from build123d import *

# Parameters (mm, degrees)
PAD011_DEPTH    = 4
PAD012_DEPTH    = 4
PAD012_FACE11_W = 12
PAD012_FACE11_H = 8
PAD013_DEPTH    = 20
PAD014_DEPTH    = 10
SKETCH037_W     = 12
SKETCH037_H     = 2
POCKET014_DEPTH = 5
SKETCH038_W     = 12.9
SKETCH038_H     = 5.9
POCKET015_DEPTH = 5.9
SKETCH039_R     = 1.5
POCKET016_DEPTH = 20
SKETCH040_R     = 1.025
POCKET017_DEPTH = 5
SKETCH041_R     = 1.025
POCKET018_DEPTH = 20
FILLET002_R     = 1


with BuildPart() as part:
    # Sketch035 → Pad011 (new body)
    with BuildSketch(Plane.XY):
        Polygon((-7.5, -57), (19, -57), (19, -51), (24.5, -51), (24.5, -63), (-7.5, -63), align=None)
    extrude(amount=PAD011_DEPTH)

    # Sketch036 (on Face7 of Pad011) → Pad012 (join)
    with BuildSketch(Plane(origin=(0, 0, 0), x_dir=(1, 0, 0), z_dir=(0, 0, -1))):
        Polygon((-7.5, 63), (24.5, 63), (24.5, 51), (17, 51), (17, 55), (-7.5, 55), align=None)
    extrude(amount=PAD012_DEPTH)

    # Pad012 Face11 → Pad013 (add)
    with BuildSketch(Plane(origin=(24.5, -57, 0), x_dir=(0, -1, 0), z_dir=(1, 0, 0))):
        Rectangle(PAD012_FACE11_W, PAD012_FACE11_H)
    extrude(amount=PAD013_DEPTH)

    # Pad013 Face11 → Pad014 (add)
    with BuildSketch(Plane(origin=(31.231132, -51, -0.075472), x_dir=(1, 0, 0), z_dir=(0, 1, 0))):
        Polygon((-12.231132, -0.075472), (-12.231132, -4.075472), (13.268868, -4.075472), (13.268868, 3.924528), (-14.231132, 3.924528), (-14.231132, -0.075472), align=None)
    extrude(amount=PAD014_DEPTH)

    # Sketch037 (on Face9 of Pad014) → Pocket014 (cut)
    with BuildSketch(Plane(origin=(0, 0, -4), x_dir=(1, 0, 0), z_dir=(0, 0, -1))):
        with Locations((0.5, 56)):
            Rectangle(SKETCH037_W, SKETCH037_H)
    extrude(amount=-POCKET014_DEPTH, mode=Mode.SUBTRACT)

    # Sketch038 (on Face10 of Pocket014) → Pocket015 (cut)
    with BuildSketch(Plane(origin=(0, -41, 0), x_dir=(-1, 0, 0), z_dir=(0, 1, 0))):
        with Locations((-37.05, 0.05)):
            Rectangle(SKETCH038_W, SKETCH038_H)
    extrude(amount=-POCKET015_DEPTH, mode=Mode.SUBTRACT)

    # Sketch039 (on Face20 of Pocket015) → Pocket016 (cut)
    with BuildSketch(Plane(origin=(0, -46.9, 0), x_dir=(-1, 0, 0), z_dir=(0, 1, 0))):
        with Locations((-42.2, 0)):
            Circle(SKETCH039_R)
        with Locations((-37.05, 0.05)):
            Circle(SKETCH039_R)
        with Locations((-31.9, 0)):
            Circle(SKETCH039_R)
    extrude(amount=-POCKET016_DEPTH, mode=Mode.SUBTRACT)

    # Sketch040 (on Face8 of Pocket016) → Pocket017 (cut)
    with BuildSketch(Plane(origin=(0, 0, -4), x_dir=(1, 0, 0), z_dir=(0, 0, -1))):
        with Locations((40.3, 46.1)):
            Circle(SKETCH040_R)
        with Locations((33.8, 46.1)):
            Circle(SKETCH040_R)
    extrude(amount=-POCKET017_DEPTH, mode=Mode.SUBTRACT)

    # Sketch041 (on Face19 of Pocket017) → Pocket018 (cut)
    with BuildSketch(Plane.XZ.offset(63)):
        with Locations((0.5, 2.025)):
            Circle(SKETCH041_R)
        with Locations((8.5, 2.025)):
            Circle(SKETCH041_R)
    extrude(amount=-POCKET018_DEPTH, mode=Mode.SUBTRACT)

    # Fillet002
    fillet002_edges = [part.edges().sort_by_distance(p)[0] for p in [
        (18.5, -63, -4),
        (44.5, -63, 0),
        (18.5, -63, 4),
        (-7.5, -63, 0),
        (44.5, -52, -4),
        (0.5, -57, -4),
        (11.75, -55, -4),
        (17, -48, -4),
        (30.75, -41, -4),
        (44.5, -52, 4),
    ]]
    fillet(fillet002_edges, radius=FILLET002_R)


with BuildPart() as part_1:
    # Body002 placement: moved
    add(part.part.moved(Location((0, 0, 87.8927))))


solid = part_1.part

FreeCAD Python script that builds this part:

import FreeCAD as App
import Part
import Sketcher
from FreeCAD import Vector
Q = App.Units.Quantity


def edges_at(feature, points):
    """Names of the edges that pass closest to the given points."""
    edges = feature.Shape.Edges
    near = lambda p: min(range(len(edges)), key=lambda i: edges[i].distToShape(Part.Vertex(*p))[0])
    return sorted({f"Edge{near(p) + 1}" for p in points})


def add_polygon(sketch, points):
    """Adds a closed chain of lines whose ends are joined by coincident constraints."""
    first, n = sketch.GeometryCount, len(points)
    for a, b in zip(points, points[1:] + points[:1]):
        sketch.addGeometry(Part.LineSegment(App.Vector(*a, 0), App.Vector(*b, 0)), False)
    for i in range(n):
        sketch.addConstraint(Sketcher.Constraint("Coincident", first + i, 2, first + (i + 1) % n, 1))

doc = App.newDocument("Part")
body = doc.addObject("PartDesign::Body", "Body")

# Sketch on XY plane
sketch1 = doc.addObject("Sketcher::SketchObject", "Sketch")
body.addObject(sketch1)
sketch1.AttachmentSupport = (doc.XY_Plane, [""])
sketch1.MapMode = "FlatFace"
add_polygon(sketch1, [(19, -57), (-8, -57), (-8, -63), (24, -63), (24, -51), (19, -51)])  # lines 0-5
sketch1.addConstraint(Sketcher.Constraint("Horizontal", 0))
sketch1.addConstraint(Sketcher.Constraint("Vertical", 1))
sketch1.addConstraint(Sketcher.Constraint("Horizontal", 2))
sketch1.addConstraint(Sketcher.Constraint("Vertical", 3))
sketch1.addConstraint(Sketcher.Constraint("Horizontal", 4))
sketch1.addConstraint(Sketcher.Constraint("Vertical", 5))
sketch1.addConstraint(Sketcher.Constraint("Equal", 1, 5))
sketch1.addConstraint(Sketcher.Constraint("DistanceX", 2, 1, 2, 2, Q("32 mm")))
sketch1.addConstraint(Sketcher.Constraint("DistanceY", 1, 2, 1, 1, Q("6 mm")))
sketch1.addConstraint(Sketcher.Constraint("DistanceX", 0, 2, 0, 1, Q("26.5 mm")))
sketch1.addConstraint(Sketcher.Constraint("DistanceY", 0, 2, -1, 1, Q("57 mm")))
sketch1.addConstraint(Sketcher.Constraint("DistanceX", -1, 1, 4, 2, Q("19 mm")))
pad1 = doc.addObject("PartDesign::Pad", "Pad")
body.addObject(pad1)
pad1.Profile = sketch1
pad1.Length = 4

# Sketch on XY plane
sketch2 = doc.addObject("Sketcher::SketchObject", "Sketch001")
body.addObject(sketch2)
sketch2.AttachmentSupport = (doc.XY_Plane, [""])
sketch2.MapMode = "FlatFace"
add_polygon(sketch2, [(24.5, -63), (-7.5, -63), (-7.5, -55), (17, -55), (17, -51), (24.5, -51)])  # lines 0-5
sketch2.addConstraint(Sketcher.Constraint("Horizontal", 0))
sketch2.addConstraint(Sketcher.Constraint("Vertical", 1))
sketch2.addConstraint(Sketcher.Constraint("Horizontal", 2))
sketch2.addConstraint(Sketcher.Constraint("Vertical", 3))
sketch2.addConstraint(Sketcher.Constraint("Horizontal", 4))
sketch2.addConstraint(Sketcher.Constraint("Vertical", 5))
sketch2.addConstraint(Sketcher.Constraint("DistanceX", 0, 2, 0, 1, Q("32 mm")))
sketch2.addConstraint(Sketcher.Constraint("DistanceY", 1, 1, 1, 2, Q("8 mm")))
sketch2.addConstraint(Sketcher.Constraint("DistanceY", 3, 1, 3, 2, Q("4 mm")))
sketch2.addConstraint(Sketcher.Constraint("DistanceX", 2, 1, 2, 2, Q("24.5 mm")))
sketch2.addConstraint(Sketcher.Constraint("DistanceY", 0, 2, -1, 1, Q("63 mm")))
sketch2.addConstraint(Sketcher.Constraint("DistanceX", -1, 1, 2, 2, Q("17 mm")))
pad2 = doc.addObject("PartDesign::Pad", "Pad001")
body.addObject(pad2)
pad2.Profile = sketch2
pad2.Length = 4
pad2.Reversed = True

# Sketch on YZ plane
sketch3 = doc.addObject("Sketcher::SketchObject", "Sketch002")
body.addObject(sketch3)
sketch3.AttachmentSupport = (doc.YZ_Plane, [""])
sketch3.MapMode = "FlatFace"
sketch3.AttachmentOffset = App.Placement(Vector(0, 0, 24.5), App.Rotation())
add_polygon(sketch3, [(-51, -4), (-51, 4), (-63, 4), (-63, -4)])  # lines 0-3
sketch3.addConstraint(Sketcher.Constraint("Vertical", 0))
sketch3.addConstraint(Sketcher.Constraint("Horizontal", 1))
sketch3.addConstraint(Sketcher.Constraint("Vertical", 2))
sketch3.addConstraint(Sketcher.Constraint("Horizontal", 3))
sketch3.addConstraint(Sketcher.Constraint("DistanceX", 1, 2, 1, 1, Q("12 mm")))
sketch3.addConstraint(Sketcher.Constraint("DistanceY", 0, 1, 0, 2, Q("8 mm")))
sketch3.addConstraint(Sketcher.Constraint("DistanceX", 0, 2, -1, 1, Q("51 mm")))
sketch3.addConstraint(Sketcher.Constraint("DistanceY", -1, 1, 0, 2, Q("4 mm")))
pad3 = doc.addObject("PartDesign::Pad", "Pad002")
body.addObject(pad3)
pad3.Profile = sketch3
pad3.Length = 20

# Sketch on XZ plane
sketch4 = doc.addObject("Sketcher::SketchObject", "Sketch003")
body.addObject(sketch4)
sketch4.AttachmentSupport = (doc.XZ_Plane, [""])
sketch4.MapMode = "FlatFace"
sketch4.AttachmentOffset = App.Placement(Vector(0, 0, 51), App.Rotation())
add_polygon(sketch4, [(19, 0), (19, 4), (44.5, 4), (44.5, -4), (17, -4), (17, 0)])  # lines 0-5
sketch4.addConstraint(Sketcher.Constraint("Vertical", 0))
sketch4.addConstraint(Sketcher.Constraint("Horizontal", 1))
sketch4.addConstraint(Sketcher.Constraint("Vertical", 2))
sketch4.addConstraint(Sketcher.Constraint("Horizontal", 3))
sketch4.addConstraint(Sketcher.Constraint("Vertical", 4))
sketch4.addConstraint(Sketcher.Constraint("Horizontal", 5))
sketch4.addConstraint(Sketcher.Constraint("PointOnObject", 4, 2, -1))
sketch4.addConstraint(Sketcher.Constraint("Equal", 0, 4))
sketch4.addConstraint(Sketcher.Constraint("DistanceX", 5, 1, 5, 2, Q("2 mm")))
sketch4.addConstraint(Sketcher.Constraint("DistanceY", 0, 1, 0, 2, Q("4 mm")))
sketch4.addConstraint(Sketcher.Constraint("DistanceX", 1, 1, 1, 2, Q("25.5 mm")))
sketch4.addConstraint(Sketcher.Constraint("DistanceX", -1, 1, 0, 2, Q("19 mm")))
pad4 = doc.addObject("PartDesign::Pad", "Pad003")
body.addObject(pad4)
pad4.Profile = sketch4
pad4.Length = 10
pad4.Reversed = True

# Sketch on XY plane
sketch5 = doc.addObject("Sketcher::SketchObject", "Sketch004")
body.addObject(sketch5)
sketch5.AttachmentSupport = (doc.XY_Plane, [""])
sketch5.MapMode = "FlatFace"
sketch5.AttachmentOffset = App.Placement(Vector(0, 0, -4), App.Rotation())
add_polygon(sketch5, [(-5.5, -57), (-5.5, -55), (6.5, -55), (6.5, -57)])  # lines 0-3
sketch5.addConstraint(Sketcher.Constraint("Vertical", 0))
sketch5.addConstraint(Sketcher.Constraint("Horizontal", 1))
sketch5.addConstraint(Sketcher.Constraint("Vertical", 2))
sketch5.addConstraint(Sketcher.Constraint("Horizontal", 3))
sketch5.addConstraint(Sketcher.Constraint("DistanceX", 1, 1, 1, 2, Q("12 mm")))
sketch5.addConstraint(Sketcher.Constraint("DistanceY", 0, 1, 0, 2, Q("2 mm")))
sketch5.addConstraint(Sketcher.Constraint("DistanceY", 0, 2, -1, 1, Q("55 mm")))
sketch5.addConstraint(Sketcher.Constraint("DistanceX", 0, 2, -1, 1, Q("5.5 mm")))
pocket1 = doc.addObject("PartDesign::Pocket", "Pocket")
body.addObject(pocket1)
pocket1.Profile = sketch5
pocket1.Length = 5
pocket1.Reversed = True

# Sketch on XZ plane
sketch6 = doc.addObject("Sketcher::SketchObject", "Sketch005")
body.addObject(sketch6)
sketch6.AttachmentSupport = (doc.XZ_Plane, [""])
sketch6.MapMode = "FlatFace"
sketch6.AttachmentOffset = App.Placement(Vector(0, 0, 41), App.Rotation())
add_polygon(sketch6, [(44, 3), (44, -3), (31, -3), (31, 3)])  # lines 0-3
sketch6.addConstraint(Sketcher.Constraint("Vertical", 0))
sketch6.addConstraint(Sketcher.Constraint("Horizontal", 1))
sketch6.addConstraint(Sketcher.Constraint("Vertical", 2))
sketch6.addConstraint(Sketcher.Constraint("Horizontal", 3))
sketch6.addConstraint(Sketcher.Constraint("DistanceX", 1, 2, 1, 1, Q("12.9 mm")))
sketch6.addConstraint(Sketcher.Constraint("DistanceY", 0, 2, 0, 1, Q("5.9 mm")))
sketch6.addConstraint(Sketcher.Constraint("DistanceY", -1, 1, 2, 2, Q("3 mm")))
sketch6.addConstraint(Sketcher.Constraint("DistanceX", -1, 1, 0, 2, Q("43.5 mm")))
pocket2 = doc.addObject("PartDesign::Pocket", "Pocket001")
body.addObject(pocket2)
pocket2.Profile = sketch6
pocket2.Length = 5.9
pocket2.Reversed = True

# Sketch on XZ plane
sketch7 = doc.addObject("Sketcher::SketchObject", "Sketch006")
body.addObject(sketch7)
sketch7.AttachmentSupport = (doc.XZ_Plane, [""])
sketch7.MapMode = "FlatFace"
sketch7.AttachmentOffset = App.Placement(Vector(0, 0, 46.9), App.Rotation())
sketch7.addGeometry(Part.Circle(Vector(42.2, 0, 0), Vector(0, 0, 1), 1.5), False)
sketch7.addGeometry(Part.Circle(Vector(37, 0.1, 0), Vector(0, 0, 1), 1.5), False)
sketch7.addGeometry(Part.Circle(Vector(31.9, 0, 0), Vector(0, 0, 1), 1.5), False)
sketch7.addConstraint(Sketcher.Constraint("Equal", 0, 1))
sketch7.addConstraint(Sketcher.Constraint("Equal", 1, 2))
sketch7.addConstraint(Sketcher.Constraint("PointOnObject", 0, 3, -1))
sketch7.addConstraint(Sketcher.Constraint("PointOnObject", 2, 3, -1))
sketch7.addConstraint(Sketcher.Constraint("Diameter", 0, Q("3 mm")))
sketch7.addConstraint(Sketcher.Constraint("DistanceX", -1, 1, 0, 3, Q("42.2 mm")))
sketch7.addConstraint(Sketcher.Constraint("DistanceX", -1, 1, 2, 3, Q("31.9 mm")))
sketch7.addConstraint(Sketcher.Constraint("DistanceX", -1, 1, 1, 3, Q("37.05 mm")))
sketch7.addConstraint(Sketcher.Constraint("DistanceY", -1, 1, 1, 3, Q("0.05 mm")))
pocket3 = doc.addObject("PartDesign::Pocket", "Pocket002")
body.addObject(pocket3)
pocket3.Profile = sketch7
pocket3.Length = 20
pocket3.Reversed = True

# Sketch on XY plane
sketch8 = doc.addObject("Sketcher::SketchObject", "Sketch007")
body.addObject(sketch8)
sketch8.AttachmentSupport = (doc.XY_Plane, [""])
sketch8.MapMode = "FlatFace"
sketch8.AttachmentOffset = App.Placement(Vector(0, 0, -4), App.Rotation())
sketch8.addGeometry(Part.Circle(Vector(40.3, -46.1, 0), Vector(0, 0, 1), 1), False)
sketch8.addGeometry(Part.Circle(Vector(33.8, -46.1, 0), Vector(0, 0, 1), 1), False)
sketch8.addConstraint(Sketcher.Constraint("Equal", 0, 1))
sketch8.addConstraint(Sketcher.Constraint("Horizontal", 0, 3, 1, 3))
sketch8.addConstraint(Sketcher.Constraint("Diameter", 0, Q("2.05 mm")))
sketch8.addConstraint(Sketcher.Constraint("DistanceX", -1, 1, 0, 3, Q("40.3 mm")))
sketch8.addConstraint(Sketcher.Constraint("DistanceY", 0, 3, -1, 1, Q("46.1 mm")))
sketch8.addConstraint(Sketcher.Constraint("DistanceX", -1, 1, 1, 3, Q("33.8 mm")))
pocket4 = doc.addObject("PartDesign::Pocket", "Pocket003")
body.addObject(pocket4)
pocket4.Profile = sketch8
pocket4.Length = 5
pocket4.Reversed = True

# Sketch on XZ plane
sketch9 = doc.addObject("Sketcher::SketchObject", "Sketch008")
body.addObject(sketch9)
sketch9.AttachmentSupport = (doc.XZ_Plane, [""])
sketch9.MapMode = "FlatFace"
sketch9.AttachmentOffset = App.Placement(Vector(0, 0, 63), App.Rotation())
sketch9.addGeometry(Part.Circle(Vector(0.5, 2, 0), Vector(0, 0, 1), 1), False)
sketch9.addGeometry(Part.Circle(Vector(8.5, 2, 0), Vector(0, 0, 1), 1), False)
sketch9.addConstraint(Sketcher.Constraint("Equal", 0, 1))
sketch9.addConstraint(Sketcher.Constraint("Horizontal", 0, 3, 1, 3))
sketch9.addConstraint(Sketcher.Constraint("Diameter", 0, Q("2.05 mm")))
sketch9.addConstraint(Sketcher.Constraint("DistanceX", 0, 3, 1, 3, Q("8 mm")))
sketch9.addConstraint(Sketcher.Constraint("DistanceX", -1, 1, 0, 3, Q("0.5 mm")))
sketch9.addConstraint(Sketcher.Constraint("DistanceY", -1, 1, 0, 3, Q("2.025 mm")))
pocket5 = doc.addObject("PartDesign::Pocket", "Pocket004")
body.addObject(pocket5)
pocket5.Profile = sketch9
pocket5.Length = 20
doc.recompute()

fillet = doc.addObject("PartDesign::Fillet", "Fillet")
body.addObject(fillet)
fillet.Base = (pocket5, edges_at(pocket5, [
    (18.5, -63, -4),
    (44.5, -63, 0),
    (18.5, -63, 4),
    (-7.5, -63, 0),
    (44.5, -52, -4),
    (0.5, -57, -4),
    (11.75, -55, -4),
    (17, -48, -4),
    (30.75, -41, -4),
    (44.5, -52, 4),
]))
fillet.Radius = 1
body2 = doc.addObject("PartDesign::Body", "Body001")
doc.recompute()

body.Placement = App.Placement(Vector(0, 0, 87.8927), App.Rotation(Vector(0, 0, 1), 0))
boolean = doc.addObject("PartDesign::Boolean", "Boolean")
body2.addObject(boolean)
boolean.Type = "Fuse"
boolean.addObjects([body])

doc.recompute()
